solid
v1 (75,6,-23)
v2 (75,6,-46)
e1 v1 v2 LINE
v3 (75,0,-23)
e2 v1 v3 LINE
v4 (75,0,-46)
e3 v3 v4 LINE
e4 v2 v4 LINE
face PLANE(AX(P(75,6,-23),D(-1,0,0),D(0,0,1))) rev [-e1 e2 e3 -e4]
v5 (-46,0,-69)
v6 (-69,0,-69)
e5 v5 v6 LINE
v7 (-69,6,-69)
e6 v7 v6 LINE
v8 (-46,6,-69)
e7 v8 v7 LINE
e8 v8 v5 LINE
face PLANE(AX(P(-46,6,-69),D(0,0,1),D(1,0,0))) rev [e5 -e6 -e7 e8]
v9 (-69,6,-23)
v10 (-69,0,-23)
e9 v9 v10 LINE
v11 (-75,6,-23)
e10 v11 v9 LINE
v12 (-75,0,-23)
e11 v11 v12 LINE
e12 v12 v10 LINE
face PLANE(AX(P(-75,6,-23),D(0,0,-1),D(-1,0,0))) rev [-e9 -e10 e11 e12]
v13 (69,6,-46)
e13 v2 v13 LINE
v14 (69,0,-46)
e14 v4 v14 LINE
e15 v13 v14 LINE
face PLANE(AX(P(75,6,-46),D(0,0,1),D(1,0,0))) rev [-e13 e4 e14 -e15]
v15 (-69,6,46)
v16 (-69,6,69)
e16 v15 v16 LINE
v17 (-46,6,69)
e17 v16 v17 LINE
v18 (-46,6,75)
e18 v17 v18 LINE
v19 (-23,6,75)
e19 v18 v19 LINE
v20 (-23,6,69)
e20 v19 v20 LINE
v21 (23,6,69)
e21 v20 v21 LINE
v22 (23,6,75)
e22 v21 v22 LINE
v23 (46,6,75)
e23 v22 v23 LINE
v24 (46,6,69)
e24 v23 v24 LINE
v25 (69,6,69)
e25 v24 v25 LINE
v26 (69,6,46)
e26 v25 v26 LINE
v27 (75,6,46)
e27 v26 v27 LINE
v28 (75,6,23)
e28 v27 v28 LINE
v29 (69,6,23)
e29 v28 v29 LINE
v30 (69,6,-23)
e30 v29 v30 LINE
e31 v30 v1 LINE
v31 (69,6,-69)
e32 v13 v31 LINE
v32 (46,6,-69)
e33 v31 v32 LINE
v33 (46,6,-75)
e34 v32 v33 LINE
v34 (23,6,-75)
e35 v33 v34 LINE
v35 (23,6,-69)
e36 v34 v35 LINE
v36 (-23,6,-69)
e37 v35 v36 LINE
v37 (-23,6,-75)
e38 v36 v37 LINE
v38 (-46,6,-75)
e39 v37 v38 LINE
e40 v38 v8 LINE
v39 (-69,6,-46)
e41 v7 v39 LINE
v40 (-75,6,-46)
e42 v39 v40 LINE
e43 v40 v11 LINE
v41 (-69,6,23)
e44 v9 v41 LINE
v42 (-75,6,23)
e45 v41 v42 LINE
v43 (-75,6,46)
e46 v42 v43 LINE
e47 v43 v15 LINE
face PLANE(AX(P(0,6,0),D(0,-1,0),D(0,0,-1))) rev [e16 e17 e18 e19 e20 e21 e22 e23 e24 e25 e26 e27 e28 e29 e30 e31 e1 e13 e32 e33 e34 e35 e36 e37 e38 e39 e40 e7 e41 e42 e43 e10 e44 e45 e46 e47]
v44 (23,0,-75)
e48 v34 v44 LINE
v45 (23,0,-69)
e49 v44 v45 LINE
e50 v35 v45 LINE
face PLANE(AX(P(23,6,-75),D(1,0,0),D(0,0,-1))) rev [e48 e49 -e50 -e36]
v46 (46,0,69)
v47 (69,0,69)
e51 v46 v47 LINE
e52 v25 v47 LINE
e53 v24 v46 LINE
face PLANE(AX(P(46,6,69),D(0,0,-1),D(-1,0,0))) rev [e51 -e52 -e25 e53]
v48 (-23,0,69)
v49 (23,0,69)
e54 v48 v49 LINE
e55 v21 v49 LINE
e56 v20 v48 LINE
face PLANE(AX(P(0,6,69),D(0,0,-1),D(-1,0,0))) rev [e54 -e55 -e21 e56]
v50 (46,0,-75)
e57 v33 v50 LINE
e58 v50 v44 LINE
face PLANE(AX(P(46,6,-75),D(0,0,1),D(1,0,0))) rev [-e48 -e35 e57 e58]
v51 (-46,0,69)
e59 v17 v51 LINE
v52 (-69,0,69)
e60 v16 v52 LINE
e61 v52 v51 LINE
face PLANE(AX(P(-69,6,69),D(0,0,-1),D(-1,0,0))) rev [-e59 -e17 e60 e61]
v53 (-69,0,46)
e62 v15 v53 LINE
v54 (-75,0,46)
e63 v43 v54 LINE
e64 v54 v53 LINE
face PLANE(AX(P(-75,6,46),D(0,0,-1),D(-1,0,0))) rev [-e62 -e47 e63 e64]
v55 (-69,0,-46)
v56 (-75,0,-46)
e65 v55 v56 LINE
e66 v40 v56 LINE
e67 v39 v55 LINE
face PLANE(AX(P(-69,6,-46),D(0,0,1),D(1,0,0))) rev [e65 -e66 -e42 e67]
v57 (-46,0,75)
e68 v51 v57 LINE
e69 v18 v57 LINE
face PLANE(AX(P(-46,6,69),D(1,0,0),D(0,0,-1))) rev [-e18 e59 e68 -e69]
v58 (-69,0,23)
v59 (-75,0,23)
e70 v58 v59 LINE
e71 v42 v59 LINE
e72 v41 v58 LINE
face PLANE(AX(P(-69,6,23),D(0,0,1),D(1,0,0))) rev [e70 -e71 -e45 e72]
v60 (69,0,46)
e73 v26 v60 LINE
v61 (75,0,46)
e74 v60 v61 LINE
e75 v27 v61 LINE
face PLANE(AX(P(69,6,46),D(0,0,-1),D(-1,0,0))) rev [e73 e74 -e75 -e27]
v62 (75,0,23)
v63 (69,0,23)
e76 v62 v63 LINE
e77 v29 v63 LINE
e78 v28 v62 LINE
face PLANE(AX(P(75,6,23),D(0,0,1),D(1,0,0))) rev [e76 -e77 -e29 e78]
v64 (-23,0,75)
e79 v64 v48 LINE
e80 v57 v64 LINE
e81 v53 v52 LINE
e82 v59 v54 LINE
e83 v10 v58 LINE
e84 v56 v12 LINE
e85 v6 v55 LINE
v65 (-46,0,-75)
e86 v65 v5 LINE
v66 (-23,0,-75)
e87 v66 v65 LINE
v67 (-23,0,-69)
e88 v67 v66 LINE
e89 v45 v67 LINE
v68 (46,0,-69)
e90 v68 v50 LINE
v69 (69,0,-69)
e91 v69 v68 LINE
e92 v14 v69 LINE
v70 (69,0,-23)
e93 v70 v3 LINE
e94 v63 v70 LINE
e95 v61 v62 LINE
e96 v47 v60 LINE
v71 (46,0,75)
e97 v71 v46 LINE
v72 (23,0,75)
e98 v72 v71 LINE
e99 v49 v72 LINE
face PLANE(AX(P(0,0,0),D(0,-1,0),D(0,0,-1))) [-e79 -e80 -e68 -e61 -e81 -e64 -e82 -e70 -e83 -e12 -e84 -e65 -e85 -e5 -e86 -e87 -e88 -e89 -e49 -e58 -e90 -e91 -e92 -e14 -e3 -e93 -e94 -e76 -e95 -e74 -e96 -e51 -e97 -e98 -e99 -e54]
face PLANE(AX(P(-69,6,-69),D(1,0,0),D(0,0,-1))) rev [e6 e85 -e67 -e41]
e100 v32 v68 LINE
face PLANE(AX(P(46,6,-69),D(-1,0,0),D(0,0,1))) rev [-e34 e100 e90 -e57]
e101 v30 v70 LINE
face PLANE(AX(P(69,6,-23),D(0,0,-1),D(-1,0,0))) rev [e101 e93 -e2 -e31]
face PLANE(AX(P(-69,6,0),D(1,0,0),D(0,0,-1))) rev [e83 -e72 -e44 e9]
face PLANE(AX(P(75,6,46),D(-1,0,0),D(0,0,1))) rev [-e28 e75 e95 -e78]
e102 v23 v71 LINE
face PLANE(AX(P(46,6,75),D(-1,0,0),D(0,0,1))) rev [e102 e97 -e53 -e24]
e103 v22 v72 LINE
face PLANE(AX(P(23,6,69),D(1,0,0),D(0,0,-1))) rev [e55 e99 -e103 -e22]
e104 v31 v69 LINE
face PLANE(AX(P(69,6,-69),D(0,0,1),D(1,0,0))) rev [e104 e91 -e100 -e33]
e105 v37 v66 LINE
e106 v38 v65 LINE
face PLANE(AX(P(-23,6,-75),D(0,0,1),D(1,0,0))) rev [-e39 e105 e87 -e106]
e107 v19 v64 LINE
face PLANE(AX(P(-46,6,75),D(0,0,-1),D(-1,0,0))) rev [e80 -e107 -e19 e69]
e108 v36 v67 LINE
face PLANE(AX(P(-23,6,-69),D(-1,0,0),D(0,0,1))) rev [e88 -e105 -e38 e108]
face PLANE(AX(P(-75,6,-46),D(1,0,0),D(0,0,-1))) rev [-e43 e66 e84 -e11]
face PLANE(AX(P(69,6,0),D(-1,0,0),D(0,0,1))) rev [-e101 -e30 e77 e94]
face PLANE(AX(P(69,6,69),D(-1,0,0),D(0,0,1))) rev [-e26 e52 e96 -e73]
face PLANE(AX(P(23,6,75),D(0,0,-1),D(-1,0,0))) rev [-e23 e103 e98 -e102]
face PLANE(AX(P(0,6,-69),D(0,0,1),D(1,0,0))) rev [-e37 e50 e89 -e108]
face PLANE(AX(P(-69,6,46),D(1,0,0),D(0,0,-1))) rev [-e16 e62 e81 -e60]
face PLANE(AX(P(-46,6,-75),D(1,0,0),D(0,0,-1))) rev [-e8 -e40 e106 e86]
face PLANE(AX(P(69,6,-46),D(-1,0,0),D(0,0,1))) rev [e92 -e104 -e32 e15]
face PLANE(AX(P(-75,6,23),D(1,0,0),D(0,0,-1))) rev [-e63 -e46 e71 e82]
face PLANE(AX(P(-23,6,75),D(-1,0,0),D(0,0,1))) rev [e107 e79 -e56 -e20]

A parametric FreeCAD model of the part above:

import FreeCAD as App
import Part
import Sketcher
from FreeCAD import Vector

doc = App.newDocument("Part")
params = doc.addObject("Spreadsheet::Sheet", "Params")
for row, (alias, value) in enumerate([
    ("sketch1_width", "23 mm"),
    ("sketch1_width2", "6 mm"),
    ("sketch1_width3", "46 mm"),
    ("pad1_length", "6 mm"),
], start=1):
    params.set(f"A{row}", alias)
    params.set(f"B{row}", "=" + value)
    params.setAlias(f"B{row}", alias)

body = doc.addObject("PartDesign::Body", "Body")

# Sketch on XZ plane
sketch1 = body.newObject("Sketcher::SketchObject", "Sketch")
sketch1.AttachmentSupport = (doc.getObject("XZ_Plane"), [""])
sketch1.MapMode = "FlatFace"
sketch1.addGeometry([
    Part.LineSegment(Vector(-23, -69, 0), Vector(-23, -75, 0)),  # 0
    Part.LineSegment(Vector(-23, -75, 0), Vector(-46, -75, 0)),  # 1
    Part.LineSegment(Vector(-46, -75, 0), Vector(-46, -69, 0)),  # 2
    Part.LineSegment(Vector(-46, -69, 0), Vector(-69, -69, 0)),  # 3
    Part.LineSegment(Vector(-69, -69, 0), Vector(-69, -46, 0)),  # 4
    Part.LineSegment(Vector(-69, -46, 0), Vector(-75, -46, 0)),  # 5
    Part.LineSegment(Vector(-75, -46, 0), Vector(-75, -23, 0)),  # 6
    Part.LineSegment(Vector(-75, -23, 0), Vector(-69, -23, 0)),  # 7
    Part.LineSegment(Vector(-69, -23, 0), Vector(-69, 23, 0)),  # 8
    Part.LineSegment(Vector(-69, 23, 0), Vector(-75, 23, 0)),  # 9
    Part.LineSegment(Vector(-75, 23, 0), Vector(-75, 46, 0)),  # 10
    Part.LineSegment(Vector(-75, 46, 0), Vector(-69, 46, 0)),  # 11
    Part.LineSegment(Vector(-69, 46, 0), Vector(-69, 69, 0)),  # 12
    Part.LineSegment(Vector(-69, 69, 0), Vector(-46, 69, 0)),  # 13
    Part.LineSegment(Vector(-46, 69, 0), Vector(-46, 75, 0)),  # 14
    Part.LineSegment(Vector(-46, 75, 0), Vector(-23, 75, 0)),  # 15
    Part.LineSegment(Vector(-23, 75, 0), Vector(-23, 69, 0)),  # 16
    Part.LineSegment(Vector(-23, 69, 0), Vector(23, 69, 0)),  # 17
    Part.LineSegment(Vector(23, 69, 0), Vector(23, 75, 0)),  # 18
    Part.LineSegment(Vector(23, 75, 0), Vector(46, 75, 0)),  # 19
    Part.LineSegment(Vector(46, 75, 0), Vector(46, 69, 0)),  # 20
    Part.LineSegment(Vector(46, 69, 0), Vector(69, 69, 0)),  # 21
    Part.LineSegment(Vector(69, 69, 0), Vector(69, 46, 0)),  # 22
    Part.LineSegment(Vector(69, 46, 0), Vector(75, 46, 0)),  # 23
    Part.LineSegment(Vector(75, 46, 0), Vector(75, 23, 0)),  # 24
    Part.LineSegment(Vector(75, 23, 0), Vector(69, 23, 0)),  # 25
    Part.LineSegment(Vector(69, 23, 0), Vector(69, -23, 0)),  # 26
    Part.LineSegment(Vector(69, -23, 0), Vector(75, -23, 0)),  # 27
    Part.LineSegment(Vector(75, -23, 0), Vector(75, -46, 0)),  # 28
    Part.LineSegment(Vector(75, -46, 0), Vector(69, -46, 0)),  # 29
    Part.LineSegment(Vector(69, -46, 0), Vector(69, -69, 0)),  # 30
    Part.LineSegment(Vector(69, -69, 0), Vector(46, -69, 0)),  # 31
    Part.LineSegment(Vector(46, -69, 0), Vector(46, -75, 0)),  # 32
    Part.LineSegment(Vector(46, -75, 0), Vector(23, -75, 0)),  # 33
    Part.LineSegment(Vector(23, -75, 0), Vector(23, -69, 0)),  # 34
    Part.LineSegment(Vector(23, -69, 0), Vector(-23, -69, 0)),  # 35
], False)
sketch1.addConstraint([
    Sketcher.Constraint("Coincident", 0, 2, 1, 1),
    Sketcher.Constraint("Coincident", 1, 2, 2, 1),
    Sketcher.Constraint("Coincident", 2, 2, 3, 1),
    Sketcher.Constraint("Coincident", 3, 2, 4, 1),
    Sketcher.Constraint("Coincident", 4, 2, 5, 1),
    Sketcher.Constraint("Coincident", 5, 2, 6, 1),
    Sketcher.Constraint("Coincident", 6, 2, 7, 1),
    Sketcher.Constraint("Coincident", 7, 2, 8, 1),
    Sketcher.Constraint("Coincident", 8, 2, 9, 1),
    Sketcher.Constraint("Coincident", 9, 2, 10, 1),
    Sketcher.Constraint("Coincident", 10, 2, 11, 1),
    Sketcher.Constraint("Coincident", 11, 2, 12, 1),
    Sketcher.Constraint("Coincident", 12, 2, 13, 1),
    Sketcher.Constraint("Coincident", 13, 2, 14, 1),
    Sketcher.Constraint("Coincident", 14, 2, 15, 1),
    Sketcher.Constraint("Coincident", 15, 2, 16, 1),
    Sketcher.Constraint("Coincident", 16, 2, 17, 1),
    Sketcher.Constraint("Coincident", 17, 2, 18, 1),
    Sketcher.Constraint("Coincident", 18, 2, 19, 1),
    Sketcher.Constraint("Coincident", 19, 2, 20, 1),
    Sketcher.Constraint("Coincident", 20, 2, 21, 1),
    Sketcher.Constraint("Coincident", 21, 2, 22, 1),
    Sketcher.Constraint("Coincident", 22, 2, 23, 1),
    Sketcher.Constraint("Coincident", 23, 2, 24, 1),
    Sketcher.Constraint("Coincident", 24, 2, 25, 1),
    Sketcher.Constraint("Coincident", 25, 2, 26, 1),
    Sketcher.Constraint("Coincident", 26, 2, 27, 1),
    Sketcher.Constraint("Coincident", 27, 2, 28, 1),
    Sketcher.Constraint("Coincident", 28, 2, 29, 1),
    Sketcher.Constraint("Coincident", 29, 2, 30, 1),
    Sketcher.Constraint("Coincident", 30, 2, 31, 1),
    Sketcher.Constraint("Coincident", 31, 2, 32, 1),
    Sketcher.Constraint("Coincident", 32, 2, 33, 1),
    Sketcher.Constraint("Coincident", 33, 2, 34, 1),
    Sketcher.Constraint("Coincident", 34, 2, 35, 1),
    Sketcher.Constraint("Coincident", 35, 2, 0, 1),
    Sketcher.Constraint("Vertical", 0),
    Sketcher.Constraint("Horizontal", 1),
    Sketcher.Constraint("Vertical", 2),
    Sketcher.Constraint("Horizontal", 3),
    Sketcher.Constraint("Vertical", 4),
    Sketcher.Constraint("Horizontal", 5),
    Sketcher.Constraint("Vertical", 6),
    Sketcher.Constraint("Horizontal", 7),
    Sketcher.Constraint("Vertical", 8),
    Sketcher.Constraint("Horizontal", 9),
    Sketcher.Constraint("Vertical", 10),
    Sketcher.Constraint("Horizontal", 11),
    Sketcher.Constraint("Vertical", 12),
    Sketcher.Constraint("Horizontal", 13),
    Sketcher.Constraint("Vertical", 14),
    Sketcher.Constraint("Horizontal", 15),
    Sketcher.Constraint("Vertical", 16),
    Sketcher.Constraint("Horizontal", 17),
    Sketcher.Constraint("Vertical", 18),
    Sketcher.Constraint("Horizontal", 19),
    Sketcher.Constraint("Vertical", 20),
    Sketcher.Constraint("Horizontal", 21),
    Sketcher.Constraint("Vertical", 22),
    Sketcher.Constraint("Horizontal", 23),
    Sketcher.Constraint("Vertical", 24),
    Sketcher.Constraint("Horizontal", 25),
    Sketcher.Constraint("Vertical", 26),
    Sketcher.Constraint("Horizontal", 27),
    Sketcher.Constraint("Vertical", 28),
    Sketcher.Constraint("Horizontal", 29),
    Sketcher.Constraint("Vertical", 30),
    Sketcher.Constraint("Horizontal", 31),
    Sketcher.Constraint("Vertical", 32),
    Sketcher.Constraint("Horizontal", 33),
    Sketcher.Constraint("Vertical", 34),
    Sketcher.Constraint("Horizontal", 35),
    Sketcher.Constraint("Symmetric", 0, 2, 18, 2, -1, 1),
    Sketcher.Constraint("Symmetric", 2, 2, 20, 2, -1, 1),
    Sketcher.Constraint("Symmetric", 4, 2, 22, 2, -1, 1),
    Sketcher.Constraint("Symmetric", 6, 2, 24, 2, -1, 1),
    Sketcher.Constraint("Symmetric", 8, 2, 26, 2, -1, 1),
    Sketcher.Constraint("Symmetric", 10, 2, 28, 2, -1, 1),
    Sketcher.Constraint("Symmetric", 12, 2, 30, 2, -1, 1),
    Sketcher.Constraint("Symmetric", 14, 2, 32, 2, -1, 1),
    Sketcher.Constraint("Symmetric", 16, 2, 34, 2, -1, 1),
    Sketcher.Constraint("Symmetric", 15, 2, 18, 2, -2),
    Sketcher.Constraint("Symmetric", 13, 2, 20, 2, -2),
    Sketcher.Constraint("Symmetric", 11, 2, 22, 2, -2),
    Sketcher.Constraint("Symmetric", 9, 2, 24, 2, -2),
    Sketcher.Constraint("Horizontal", 13, 2, 16, 2),
    Sketcher.Constraint("Vertical", 4, 2, 7, 2),
    Sketcher.Constraint("Equal", 1, 3),
    Sketcher.Constraint("Equal", 29, 0),
    Sketcher.Constraint("Equal", 33, 4),
    Sketcher.Constraint("Equal", 4, 6),
    Sketcher.Constraint("Equal", 35, 8),
    Sketcher.Constraint("DistanceX", 1, 2, 1, 1, 23.0),
    Sketcher.Constraint("DistanceX", 5, 2, 5, 1, 6.0),
    Sketcher.Constraint("DistanceX", 17, 1, 17, 2, 46.0),
])
sketch1.setExpression("Constraints[92]", "Params.sketch1_width")
sketch1.setExpression("Constraints[93]", "Params.sketch1_width2")
sketch1.setExpression("Constraints[94]", "Params.sketch1_width3")
pad1 = body.newObject("PartDesign::Pad", "Pad")
pad1.Profile = sketch1
pad1.setExpression("Length", "Params.pad1_length")
pad1.Reversed = True

doc.recompute()
